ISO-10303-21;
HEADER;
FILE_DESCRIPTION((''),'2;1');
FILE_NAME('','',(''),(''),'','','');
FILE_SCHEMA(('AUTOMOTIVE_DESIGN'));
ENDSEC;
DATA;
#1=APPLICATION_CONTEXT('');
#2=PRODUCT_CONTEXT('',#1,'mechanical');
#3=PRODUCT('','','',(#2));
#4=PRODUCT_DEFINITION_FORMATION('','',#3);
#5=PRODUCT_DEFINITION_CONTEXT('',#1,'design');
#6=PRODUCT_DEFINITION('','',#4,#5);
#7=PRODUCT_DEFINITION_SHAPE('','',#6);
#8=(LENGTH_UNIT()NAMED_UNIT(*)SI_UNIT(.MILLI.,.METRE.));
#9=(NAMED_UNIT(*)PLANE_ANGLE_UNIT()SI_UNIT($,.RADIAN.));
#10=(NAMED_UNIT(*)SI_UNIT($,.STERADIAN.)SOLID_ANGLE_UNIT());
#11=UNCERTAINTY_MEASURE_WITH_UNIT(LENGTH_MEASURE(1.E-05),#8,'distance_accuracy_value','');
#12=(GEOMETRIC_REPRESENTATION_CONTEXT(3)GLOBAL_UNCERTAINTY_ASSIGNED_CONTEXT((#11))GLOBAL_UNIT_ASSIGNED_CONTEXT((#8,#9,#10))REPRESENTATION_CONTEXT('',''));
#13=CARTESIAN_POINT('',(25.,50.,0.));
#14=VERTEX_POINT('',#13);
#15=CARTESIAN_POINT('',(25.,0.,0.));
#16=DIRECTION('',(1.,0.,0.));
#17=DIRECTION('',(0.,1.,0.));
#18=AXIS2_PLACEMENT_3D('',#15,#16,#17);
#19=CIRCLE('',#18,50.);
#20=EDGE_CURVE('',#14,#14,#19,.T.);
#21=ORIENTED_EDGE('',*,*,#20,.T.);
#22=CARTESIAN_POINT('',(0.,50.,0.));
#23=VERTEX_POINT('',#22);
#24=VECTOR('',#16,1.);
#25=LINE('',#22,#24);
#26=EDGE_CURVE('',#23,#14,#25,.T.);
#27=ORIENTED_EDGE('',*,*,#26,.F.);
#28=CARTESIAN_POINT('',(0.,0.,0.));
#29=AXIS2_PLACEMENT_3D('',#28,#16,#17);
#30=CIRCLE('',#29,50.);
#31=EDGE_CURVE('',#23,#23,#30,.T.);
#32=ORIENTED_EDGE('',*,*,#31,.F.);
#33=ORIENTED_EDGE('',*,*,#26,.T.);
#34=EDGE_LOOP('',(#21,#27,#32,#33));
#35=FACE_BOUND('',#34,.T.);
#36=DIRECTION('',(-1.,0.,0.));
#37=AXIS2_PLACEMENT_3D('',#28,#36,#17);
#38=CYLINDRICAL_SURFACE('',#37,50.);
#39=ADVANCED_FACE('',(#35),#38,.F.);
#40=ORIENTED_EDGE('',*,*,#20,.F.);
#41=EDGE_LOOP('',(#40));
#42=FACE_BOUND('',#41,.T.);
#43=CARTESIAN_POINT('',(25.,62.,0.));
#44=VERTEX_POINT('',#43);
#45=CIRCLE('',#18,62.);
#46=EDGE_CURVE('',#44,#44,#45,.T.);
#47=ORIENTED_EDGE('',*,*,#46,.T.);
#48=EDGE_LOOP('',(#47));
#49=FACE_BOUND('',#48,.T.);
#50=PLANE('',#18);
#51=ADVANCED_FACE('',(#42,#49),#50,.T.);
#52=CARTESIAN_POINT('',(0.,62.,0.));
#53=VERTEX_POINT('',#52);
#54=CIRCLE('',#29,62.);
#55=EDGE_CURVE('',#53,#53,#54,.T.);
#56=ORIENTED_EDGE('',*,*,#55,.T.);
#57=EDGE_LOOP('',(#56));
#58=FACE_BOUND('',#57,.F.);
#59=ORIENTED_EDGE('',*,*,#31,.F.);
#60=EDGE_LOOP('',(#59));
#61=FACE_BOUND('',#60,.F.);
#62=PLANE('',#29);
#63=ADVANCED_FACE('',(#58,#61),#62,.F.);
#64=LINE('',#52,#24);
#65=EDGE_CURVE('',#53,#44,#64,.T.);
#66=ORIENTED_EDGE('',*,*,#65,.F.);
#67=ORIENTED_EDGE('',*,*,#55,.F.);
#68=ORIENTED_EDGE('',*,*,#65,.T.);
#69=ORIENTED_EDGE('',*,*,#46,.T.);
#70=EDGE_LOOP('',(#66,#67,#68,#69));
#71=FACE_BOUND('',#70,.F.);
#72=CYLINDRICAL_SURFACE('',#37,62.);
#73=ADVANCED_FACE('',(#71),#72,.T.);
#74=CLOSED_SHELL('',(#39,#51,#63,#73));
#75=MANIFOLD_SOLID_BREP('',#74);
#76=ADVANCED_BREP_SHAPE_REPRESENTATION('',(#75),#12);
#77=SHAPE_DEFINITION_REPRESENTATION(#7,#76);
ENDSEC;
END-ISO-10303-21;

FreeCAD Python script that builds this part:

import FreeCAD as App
import Part
import Sketcher

V = App.Vector
Q = App.Units.Quantity

doc = App.newDocument("Part")
body = doc.addObject("PartDesign::Body", "Body")

# Sketch on YZ plane
sketch1 = doc.addObject("Sketcher::SketchObject", "Sketch")
body.addObject(sketch1)
sketch1.AttachmentSupport = (doc.YZ_Plane, [""])
sketch1.MapMode = "FlatFace"
sketch1.addGeometry([
    Part.Circle(V(0, 0, 0), V(0, 0, 1), 62),
    Part.Circle(V(0, 0, 0), V(0, 0, 1), 50),
], False)
sketch1.addConstraint([
    Sketcher.Constraint("Coincident", 0, 3, -1, 1),
    Sketcher.Constraint("Coincident", 1, 3, -1, 1),
    Sketcher.Constraint("Diameter", 0, Q("124 mm")),
    Sketcher.Constraint("Diameter", 1, Q("100 mm")),
])
pad1 = doc.addObject("PartDesign::Pad", "Pad")
body.addObject(pad1)
pad1.Profile = sketch1
pad1.Length = 25

doc.recompute()
